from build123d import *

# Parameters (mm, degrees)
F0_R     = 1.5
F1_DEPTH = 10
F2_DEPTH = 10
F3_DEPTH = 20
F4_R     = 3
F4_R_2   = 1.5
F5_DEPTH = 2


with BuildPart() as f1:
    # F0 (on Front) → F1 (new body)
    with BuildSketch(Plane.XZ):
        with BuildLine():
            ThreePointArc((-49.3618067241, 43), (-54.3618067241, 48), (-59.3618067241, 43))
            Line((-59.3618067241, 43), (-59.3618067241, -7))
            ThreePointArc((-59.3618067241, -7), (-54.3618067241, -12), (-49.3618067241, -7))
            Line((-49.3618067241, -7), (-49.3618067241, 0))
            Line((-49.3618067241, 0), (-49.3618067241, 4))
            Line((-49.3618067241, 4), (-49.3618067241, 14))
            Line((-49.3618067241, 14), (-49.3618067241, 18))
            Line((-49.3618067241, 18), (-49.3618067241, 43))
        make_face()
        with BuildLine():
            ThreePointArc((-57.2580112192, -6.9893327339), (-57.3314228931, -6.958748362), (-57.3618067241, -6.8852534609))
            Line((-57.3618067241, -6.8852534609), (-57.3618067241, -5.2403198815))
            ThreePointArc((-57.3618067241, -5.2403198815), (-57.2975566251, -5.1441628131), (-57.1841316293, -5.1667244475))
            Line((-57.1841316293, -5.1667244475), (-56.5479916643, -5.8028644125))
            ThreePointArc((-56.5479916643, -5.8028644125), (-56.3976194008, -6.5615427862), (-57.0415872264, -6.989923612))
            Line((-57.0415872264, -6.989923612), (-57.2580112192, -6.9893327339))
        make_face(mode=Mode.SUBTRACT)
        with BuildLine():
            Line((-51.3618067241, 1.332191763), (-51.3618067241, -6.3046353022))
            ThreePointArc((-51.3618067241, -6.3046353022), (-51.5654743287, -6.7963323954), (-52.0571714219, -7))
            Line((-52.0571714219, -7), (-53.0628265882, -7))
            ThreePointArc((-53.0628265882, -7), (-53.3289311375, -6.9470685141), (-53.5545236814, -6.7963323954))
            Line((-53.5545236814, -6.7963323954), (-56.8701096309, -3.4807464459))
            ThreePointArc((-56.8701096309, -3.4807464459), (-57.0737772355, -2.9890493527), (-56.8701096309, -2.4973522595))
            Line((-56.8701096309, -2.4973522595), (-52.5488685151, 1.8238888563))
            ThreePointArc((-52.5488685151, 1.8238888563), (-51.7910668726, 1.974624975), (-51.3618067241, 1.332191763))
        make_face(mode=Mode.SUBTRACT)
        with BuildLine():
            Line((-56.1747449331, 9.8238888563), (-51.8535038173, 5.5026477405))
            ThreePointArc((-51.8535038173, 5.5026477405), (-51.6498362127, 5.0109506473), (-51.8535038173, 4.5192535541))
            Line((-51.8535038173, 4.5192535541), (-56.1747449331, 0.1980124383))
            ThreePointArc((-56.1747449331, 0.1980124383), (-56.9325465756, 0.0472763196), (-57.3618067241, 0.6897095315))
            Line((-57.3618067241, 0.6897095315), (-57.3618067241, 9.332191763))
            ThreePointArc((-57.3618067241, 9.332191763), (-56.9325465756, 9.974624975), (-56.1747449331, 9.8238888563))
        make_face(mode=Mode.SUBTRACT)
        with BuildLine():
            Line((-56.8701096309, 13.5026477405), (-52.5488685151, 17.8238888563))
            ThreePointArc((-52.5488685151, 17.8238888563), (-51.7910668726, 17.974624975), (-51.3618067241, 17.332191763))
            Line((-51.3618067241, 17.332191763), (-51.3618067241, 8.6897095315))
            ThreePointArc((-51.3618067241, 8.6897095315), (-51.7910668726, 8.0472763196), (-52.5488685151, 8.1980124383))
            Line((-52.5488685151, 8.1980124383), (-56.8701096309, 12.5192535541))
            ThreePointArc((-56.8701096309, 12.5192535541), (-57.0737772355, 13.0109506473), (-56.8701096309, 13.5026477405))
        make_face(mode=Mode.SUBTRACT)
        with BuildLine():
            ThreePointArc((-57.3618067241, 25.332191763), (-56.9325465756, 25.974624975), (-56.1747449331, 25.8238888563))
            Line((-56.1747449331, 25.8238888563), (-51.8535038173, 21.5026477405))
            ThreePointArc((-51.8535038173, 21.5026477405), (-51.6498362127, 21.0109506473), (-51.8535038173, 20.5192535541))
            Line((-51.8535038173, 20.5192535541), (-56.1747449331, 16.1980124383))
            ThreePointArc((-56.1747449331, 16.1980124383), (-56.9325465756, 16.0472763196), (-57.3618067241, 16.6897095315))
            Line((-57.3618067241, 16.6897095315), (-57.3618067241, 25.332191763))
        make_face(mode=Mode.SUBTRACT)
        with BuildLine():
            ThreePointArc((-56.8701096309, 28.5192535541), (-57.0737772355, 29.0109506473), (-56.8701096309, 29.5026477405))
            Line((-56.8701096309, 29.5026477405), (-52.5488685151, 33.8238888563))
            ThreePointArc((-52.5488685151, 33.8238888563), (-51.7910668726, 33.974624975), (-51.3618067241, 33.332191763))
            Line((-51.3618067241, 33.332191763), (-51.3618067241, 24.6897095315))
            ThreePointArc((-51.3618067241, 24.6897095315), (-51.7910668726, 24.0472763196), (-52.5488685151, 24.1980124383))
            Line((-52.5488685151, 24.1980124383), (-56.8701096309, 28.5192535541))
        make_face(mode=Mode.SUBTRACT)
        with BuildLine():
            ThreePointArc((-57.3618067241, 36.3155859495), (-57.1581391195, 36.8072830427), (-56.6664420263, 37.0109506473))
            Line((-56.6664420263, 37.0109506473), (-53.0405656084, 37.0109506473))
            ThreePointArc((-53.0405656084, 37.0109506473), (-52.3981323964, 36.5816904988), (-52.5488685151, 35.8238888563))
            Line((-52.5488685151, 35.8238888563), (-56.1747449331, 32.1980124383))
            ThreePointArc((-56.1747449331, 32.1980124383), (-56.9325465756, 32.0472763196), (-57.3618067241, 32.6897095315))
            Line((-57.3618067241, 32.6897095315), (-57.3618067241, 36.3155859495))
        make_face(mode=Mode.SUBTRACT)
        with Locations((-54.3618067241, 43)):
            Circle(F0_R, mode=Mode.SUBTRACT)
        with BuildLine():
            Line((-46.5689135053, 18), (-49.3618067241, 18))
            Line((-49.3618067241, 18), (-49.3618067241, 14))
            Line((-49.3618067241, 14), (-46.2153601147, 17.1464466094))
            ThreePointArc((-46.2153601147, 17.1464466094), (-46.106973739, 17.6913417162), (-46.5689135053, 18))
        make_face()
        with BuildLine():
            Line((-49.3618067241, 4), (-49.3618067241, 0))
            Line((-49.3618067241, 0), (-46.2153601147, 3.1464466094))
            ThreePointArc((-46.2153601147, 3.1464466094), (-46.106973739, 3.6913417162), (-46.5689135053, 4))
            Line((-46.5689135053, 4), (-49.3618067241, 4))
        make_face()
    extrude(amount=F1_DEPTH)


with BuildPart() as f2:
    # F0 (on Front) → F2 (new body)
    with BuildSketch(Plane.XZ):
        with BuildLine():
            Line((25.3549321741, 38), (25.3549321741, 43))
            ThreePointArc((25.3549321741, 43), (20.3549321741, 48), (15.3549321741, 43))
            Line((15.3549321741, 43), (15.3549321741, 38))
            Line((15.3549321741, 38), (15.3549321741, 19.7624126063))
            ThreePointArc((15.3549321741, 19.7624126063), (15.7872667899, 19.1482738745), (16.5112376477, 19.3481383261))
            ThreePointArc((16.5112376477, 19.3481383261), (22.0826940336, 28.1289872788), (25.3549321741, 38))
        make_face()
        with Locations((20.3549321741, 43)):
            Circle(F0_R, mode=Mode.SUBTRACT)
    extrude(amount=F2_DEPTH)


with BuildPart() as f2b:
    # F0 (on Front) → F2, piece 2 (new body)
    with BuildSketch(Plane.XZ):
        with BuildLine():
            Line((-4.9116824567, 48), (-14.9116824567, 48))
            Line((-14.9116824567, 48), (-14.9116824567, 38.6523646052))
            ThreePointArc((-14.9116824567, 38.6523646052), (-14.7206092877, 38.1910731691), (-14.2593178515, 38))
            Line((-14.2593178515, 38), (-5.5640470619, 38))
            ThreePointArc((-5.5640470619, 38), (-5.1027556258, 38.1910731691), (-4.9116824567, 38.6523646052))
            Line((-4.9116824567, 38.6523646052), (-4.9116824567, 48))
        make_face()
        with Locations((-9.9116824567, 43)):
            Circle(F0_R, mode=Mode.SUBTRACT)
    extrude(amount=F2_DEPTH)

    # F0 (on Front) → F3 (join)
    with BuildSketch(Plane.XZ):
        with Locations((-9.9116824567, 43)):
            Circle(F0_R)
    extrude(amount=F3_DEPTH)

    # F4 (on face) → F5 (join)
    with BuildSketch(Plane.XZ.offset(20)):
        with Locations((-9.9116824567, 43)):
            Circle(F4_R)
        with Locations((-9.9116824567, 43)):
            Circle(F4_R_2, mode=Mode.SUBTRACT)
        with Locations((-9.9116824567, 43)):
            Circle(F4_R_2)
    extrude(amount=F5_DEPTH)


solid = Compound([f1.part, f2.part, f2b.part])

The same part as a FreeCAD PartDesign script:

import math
import FreeCAD as App
import Part
import Sketcher

V = App.Vector

doc = App.newDocument("Part")
body = doc.addObject("PartDesign::Body", "Body")

# Sketch on XZ plane
sketch1 = doc.addObject("Sketcher::SketchObject", "Sketch")
body.addObject(sketch1)
sketch1.AttachmentSupport = (doc.XZ_Plane, [""])
sketch1.MapMode = "FlatFace"
sketch1.addGeometry([
    Part.ArcOfCircle(Part.Circle(V(-54.361807, 43, 0), V(0, 0, 1), 5), math.radians(0), math.radians(180)),  # 0
    Part.LineSegment(V(-59.361807, 43, 0), V(-59.361807, -7, 0)),  # 1
    Part.ArcOfCircle(Part.Circle(V(-54.361807, -7, 0), V(0, 0, 1), 5), math.radians(180), math.radians(360)),  # 2
    Part.LineSegment(V(-49.361807, -7, 0), V(-49.361807, 0, 0)),  # 3
    Part.LineSegment(V(-49.361807, 0, 0), V(-46.21536, 3.146447, 0)),  # 4
    Part.ArcOfCircle(Part.Circle(V(-46.568914, 3.5, 0), V(0, 0, 1), 0.5), math.radians(-45), math.radians(90)),  # 5
    Part.LineSegment(V(-46.568914, 4, 0), V(-49.361807, 4, 0)),  # 6
    Part.LineSegment(V(-49.361807, 4, 0), V(-49.361807, 14, 0)),  # 7
    Part.LineSegment(V(-49.361807, 14, 0), V(-46.21536, 17.146447, 0)),  # 8
    Part.ArcOfCircle(Part.Circle(V(-46.568914, 17.5, 0), V(0, 0, 1), 0.5), math.radians(-45), math.radians(90)),  # 9
    Part.LineSegment(V(-46.568914, 18, 0), V(-49.361807, 18, 0)),  # 10
    Part.LineSegment(V(-49.361807, 18, 0), V(-49.361807, 43, 0)),  # 11
    Part.LineSegment(V(-57.041587, -6.989924, 0), V(-57.258011, -6.989333, 0)),  # 12
    Part.ArcOfCircle(Part.Circle(V(-57.257727, -6.885253, 0), V(0, 0, 1), 0.10408), math.radians(180), math.radians(269.843572)),  # 13
    Part.LineSegment(V(-57.361807, -6.885253, 0), V(-57.361807, -5.24032, 0)),  # 14
    Part.ArcOfCircle(Part.Circle(V(-57.257727, -5.24032, 0), V(0, 0, 1), 0.10408), math.radians(45), math.radians(179.999999)),  # 15
    Part.LineSegment(V(-57.184132, -5.166724, 0), V(-56.547992, -5.802864, 0)),  # 16
    Part.ArcOfCircle(Part.Circle(V(-57.039689, -6.294562, 0), V(0, 0, 1), 0.695365), math.radians(-90.156428), math.radians(45)),  # 17
    Part.ArcOfCircle(Part.Circle(V(-56.666442, 9.332192, 0), V(0, 0, 1), 0.695365), math.radians(45), math.radians(180)),  # 18
    Part.LineSegment(V(-56.174745, 9.823889, 0), V(-51.853504, 5.502648, 0)),  # 19
    Part.ArcOfCircle(Part.Circle(V(-52.345201, 5.010951, 0), V(0, 0, 1), 0.695365), math.radians(-45), math.radians(45)),  # 20
    Part.LineSegment(V(-51.853504, 4.519254, 0), V(-56.174745, 0.198012, 0)),  # 21
    Part.ArcOfCircle(Part.Circle(V(-56.666442, 0.68971, 0), V(0, 0, 1), 0.695365), math.radians(180), math.radians(315)),  # 22
    Part.LineSegment(V(-57.361807, 0.68971, 0), V(-57.361807, 9.332192, 0)),  # 23
    Part.ArcOfCircle(Part.Circle(V(-52.057171, 1.332192, 0), V(0, 0, 1), 0.695365), math.radians(0), math.radians(135)),  # 24
    Part.LineSegment(V(-51.361807, 1.332192, 0), V(-51.361807, -6.304635, 0)),  # 25
    Part.ArcOfCircle(Part.Circle(V(-52.057171, -6.304635, 0), V(0, 0, 1), 0.695365), math.radians(-90), math.radians(0)),  # 26
    Part.LineSegment(V(-52.057171, -7, 0), V(-53.062827, -7, 0)),  # 27
    Part.ArcOfCircle(Part.Circle(V(-53.062827, -6.304635, 0), V(0, 0, 1), 0.695365), math.radians(-135), math.radians(-90)),  # 28
    Part.LineSegment(V(-53.554524, -6.796332, 0), V(-56.87011, -3.480746, 0)),  # 29
    Part.ArcOfCircle(Part.Circle(V(-56.378413, -2.989049, 0), V(0, 0, 1), 0.695365), math.radians(135), math.radians(225)),  # 30
    Part.LineSegment(V(-56.87011, -2.497352, 0), V(-52.548869, 1.823889, 0)),  # 31
    Part.ArcOfCircle(Part.Circle(V(-56.378413, 13.010951, 0), V(0, 0, 1), 0.695365), math.radians(135), math.radians(225)),  # 32
    Part.LineSegment(V(-56.87011, 13.502648, 0), V(-52.548869, 17.823889, 0)),  # 33
    Part.ArcOfCircle(Part.Circle(V(-52.057171, 17.332192, 0), V(0, 0, 1), 0.695365), math.radians(0), math.radians(135)),  # 34
    Part.LineSegment(V(-51.361807, 17.332192, 0), V(-51.361807, 8.68971, 0)),  # 35
    Part.ArcOfCircle(Part.Circle(V(-52.057171, 8.68971, 0), V(0, 0, 1), 0.695365), math.radians(-135), math.radians(0)),  # 36
    Part.LineSegment(V(-52.548869, 8.198012, 0), V(-56.87011, 12.519254, 0)),  # 37
    Part.LineSegment(V(-57.361807, 16.68971, 0), V(-57.361807, 25.332192, 0)),  # 38
    Part.ArcOfCircle(Part.Circle(V(-56.666442, 25.332192, 0), V(0, 0, 1), 0.695365), math.radians(45), math.radians(180)),  # 39
    Part.LineSegment(V(-56.174745, 25.823889, 0), V(-51.853504, 21.502648, 0)),  # 40
    Part.ArcOfCircle(Part.Circle(V(-52.345201, 21.010951, 0), V(0, 0, 1), 0.695365), math.radians(-45), math.radians(45)),  # 41
    Part.LineSegment(V(-51.853504, 20.519254, 0), V(-56.174745, 16.198012, 0)),  # 42
    Part.ArcOfCircle(Part.Circle(V(-56.666442, 16.68971, 0), V(0, 0, 1), 0.695365), math.radians(180), math.radians(315)),  # 43
    Part.LineSegment(V(-57.361807, 32.68971, 0), V(-57.361807, 36.315586, 0)),  # 44
    Part.ArcOfCircle(Part.Circle(V(-56.666442, 36.315586, 0), V(0, 0, 1), 0.695365), math.radians(90), math.radians(180)),  # 45
    Part.LineSegment(V(-56.666442, 37.010951, 0), V(-53.040566, 37.010951, 0)),  # 46
    Part.ArcOfCircle(Part.Circle(V(-53.040566, 36.315586, 0), V(0, 0, 1), 0.695365), math.radians(-45), math.radians(90)),  # 47
    Part.LineSegment(V(-52.548869, 35.823889, 0), V(-56.174745, 32.198012, 0)),  # 48
    Part.ArcOfCircle(Part.Circle(V(-56.666442, 32.68971, 0), V(0, 0, 1), 0.695365), math.radians(180), math.radians(315)),  # 49
    Part.Circle(V(-54.361807, 43, 0), V(0, 0, 1), 1.5),  # 50
    Part.LineSegment(V(-52.548869, 24.198012, 0), V(-56.87011, 28.519254, 0)),  # 51
    Part.ArcOfCircle(Part.Circle(V(-56.378413, 29.010951, 0), V(0, 0, 1), 0.695365), math.radians(135), math.radians(225)),  # 52
    Part.LineSegment(V(-56.87011, 29.502648, 0), V(-52.548869, 33.823889, 0)),  # 53
    Part.ArcOfCircle(Part.Circle(V(-52.057171, 33.332192, 0), V(0, 0, 1), 0.695365), math.radians(0), math.radians(135)),  # 54
    Part.LineSegment(V(-51.361807, 33.332192, 0), V(-51.361807, 24.68971, 0)),  # 55
    Part.ArcOfCircle(Part.Circle(V(-52.057171, 24.68971, 0), V(0, 0, 1), 0.695365), math.radians(-135), math.radians(0)),  # 56
], False)
sketch1.addConstraint([
    Sketcher.Constraint("Tangent", 0, 2, 1, 1),
    Sketcher.Constraint("Tangent", 1, 2, 2, 1),
    Sketcher.Constraint("Tangent", 2, 2, 3, 1),
    Sketcher.Constraint("Coincident", 3, 2, 4, 1),
    Sketcher.Constraint("Tangent", 4, 2, 5, 1),
    Sketcher.Constraint("Tangent", 5, 2, 6, 1),
    Sketcher.Constraint("Coincident", 6, 2, 7, 1),
    Sketcher.Constraint("Coincident", 7, 2, 8, 1),
    Sketcher.Constraint("Tangent", 8, 2, 9, 1),
    Sketcher.Constraint("Tangent", 9, 2, 10, 1),
    Sketcher.Constraint("Coincident", 10, 2, 11, 1),
    Sketcher.Constraint("Tangent", 11, 2, 0, 1),
    Sketcher.Constraint("Tangent", 12, 2, 13, 2),
    Sketcher.Constraint("Tangent", 13, 1, 14, 1),
    Sketcher.Constraint("Tangent", 14, 2, 15, 2),
    Sketcher.Constraint("Tangent", 15, 1, 16, 1),
    Sketcher.Constraint("Tangent", 16, 2, 17, 2),
    Sketcher.Constraint("Tangent", 17, 1, 12, 1),
    Sketcher.Constraint("Tangent", 18, 1, 19, 1),
    Sketcher.Constraint("Tangent", 19, 2, 20, 2),
    Sketcher.Constraint("Tangent", 20, 1, 21, 1),
    Sketcher.Constraint("Tangent", 21, 2, 22, 2),
    Sketcher.Constraint("Tangent", 22, 1, 23, 1),
    Sketcher.Constraint("Tangent", 23, 2, 18, 2),
    Sketcher.Constraint("Tangent", 24, 1, 25, 1),
    Sketcher.Constraint("Tangent", 25, 2, 26, 2),
    Sketcher.Constraint("Tangent", 26, 1, 27, 1),
    Sketcher.Constraint("Tangent", 27, 2, 28, 2),
    Sketcher.Constraint("Tangent", 28, 1, 29, 1),
    Sketcher.Constraint("Tangent", 29, 2, 30, 2),
    Sketcher.Constraint("Tangent", 30, 1, 31, 1),
    Sketcher.Constraint("Tangent", 31, 2, 24, 2),
    Sketcher.Constraint("Tangent", 32, 1, 33, 1),
    Sketcher.Constraint("Tangent", 33, 2, 34, 2),
    Sketcher.Constraint("Tangent", 34, 1, 35, 1),
    Sketcher.Constraint("Tangent", 35, 2, 36, 2),
    Sketcher.Constraint("Tangent", 36, 1, 37, 1),
    Sketcher.Constraint("Tangent", 37, 2, 32, 2),
    Sketcher.Constraint("Tangent", 38, 2, 39, 2),
    Sketcher.Constraint("Tangent", 39, 1, 40, 1),
    Sketcher.Constraint("Tangent", 40, 2, 41, 2),
    Sketcher.Constraint("Tangent", 41, 1, 42, 1),
    Sketcher.Constraint("Tangent", 42, 2, 43, 2),
    Sketcher.Constraint("Tangent", 43, 1, 38, 1),
    Sketcher.Constraint("Tangent", 44, 2, 45, 2),
    Sketcher.Constraint("Tangent", 45, 1, 46, 1),
    Sketcher.Constraint("Tangent", 46, 2, 47, 2),
    Sketcher.Constraint("Tangent", 47, 1, 48, 1),
    Sketcher.Constraint("Tangent", 48, 2, 49, 2),
    Sketcher.Constraint("Tangent", 49, 1, 44, 1),
    Sketcher.Constraint("Tangent", 51, 2, 52, 2),
    Sketcher.Constraint("Tangent", 52, 1, 53, 1),
    Sketcher.Constraint("Tangent", 53, 2, 54, 2),
    Sketcher.Constraint("Tangent", 54, 1, 55, 1),
    Sketcher.Constraint("Tangent", 55, 2, 56, 2),
    Sketcher.Constraint("Tangent", 56, 1, 51, 1),
    Sketcher.Constraint("Vertical", 1),
    Sketcher.Constraint("Vertical", 3),
    Sketcher.Constraint("Horizontal", 6),
    Sketcher.Constraint("Vertical", 7),
    Sketcher.Constraint("Horizontal", 10),
    Sketcher.Constraint("Vertical", 11),
    Sketcher.Constraint("Vertical", 14),
    Sketcher.Constraint("Vertical", 23),
    Sketcher.Constraint("Vertical", 25),
    Sketcher.Constraint("Horizontal", 27),
    Sketcher.Constraint("Vertical", 35),
    Sketcher.Constraint("Vertical", 38),
    Sketcher.Constraint("Vertical", 44),
    Sketcher.Constraint("Horizontal", 46),
    Sketcher.Constraint("Vertical", 55),
    Sketcher.Constraint("Coincident", 50, 3, 0, 3),
    Sketcher.Constraint("Equal", 0, 2),
    Sketcher.Constraint("Equal", 5, 9),
    Sketcher.Constraint("Equal", 13, 15),
    Sketcher.Constraint("Equal", 17, 18),
    Sketcher.Constraint("Equal", 18, 20),
    Sketcher.Constraint("Equal", 20, 22),
    Sketcher.Constraint("Equal", 22, 24),
    Sketcher.Constraint("Equal", 24, 26),
    Sketcher.Constraint("Equal", 26, 28),
    Sketcher.Constraint("Equal", 28, 30),
    Sketcher.Constraint("Equal", 30, 32),
    Sketcher.Constraint("Equal", 32, 34),
    Sketcher.Constraint("Equal", 34, 36),
    Sketcher.Constraint("Equal", 36, 39),
    Sketcher.Constraint("Equal", 39, 41),
    Sketcher.Constraint("Equal", 41, 43),
    Sketcher.Constraint("Equal", 43, 45),
    Sketcher.Constraint("Equal", 45, 47),
    Sketcher.Constraint("Equal", 47, 49),
    Sketcher.Constraint("Equal", 49, 52),
    Sketcher.Constraint("Equal", 52, 54),
    Sketcher.Constraint("Equal", 54, 56),
    Sketcher.Constraint("PointOnObject", 3, 2, -1),
    Sketcher.Constraint("Parallel", 4, 8),
    Sketcher.Constraint("Perpendicular", 8, 16),
    Sketcher.Constraint("Parallel", 16, 19),
    Sketcher.Constraint("Perpendicular", 19, 21),
    Sketcher.Constraint("Perpendicular", 21, 29),
    Sketcher.Constraint("Perpendicular", 29, 31),
    Sketcher.Constraint("Parallel", 31, 33),
    Sketcher.Constraint("Perpendicular", 33, 37),
    Sketcher.Constraint("Parallel", 37, 40),
    Sketcher.Constraint("Perpendicular", 40, 42),
    Sketcher.Constraint("Parallel", 42, 48),
    Sketcher.Constraint("Perpendicular", 48, 51),
    Sketcher.Constraint("Perpendicular", 51, 53),
    Sketcher.Constraint("Horizontal", 2, 2, 26, 1),
    Sketcher.Constraint("Vertical", 5, 3, 9, 3),
    Sketcher.Constraint("Vertical", 30, 3, 32, 3),
    Sketcher.Constraint("Vertical", 26, 3, 34, 3),
    Sketcher.Constraint("Vertical", 22, 3, 39, 3),
    Sketcher.Constraint("Vertical", 20, 3, 41, 3),
    Sketcher.Constraint("Vertical", 43, 3, 45, 3),
    Sketcher.Constraint("Vertical", 32, 3, 52, 3),
    Sketcher.Constraint("Vertical", 36, 3, 54, 3),
    Sketcher.Constraint("Vertical", 3, 2, 6, 2),
    Sketcher.Constraint("Vertical", 19, 2, 20, 1),
    Sketcher.Constraint("Vertical", 14, 2, 22, 1),
    Sketcher.Constraint("Vertical", 36, 1, 47, 1),
    Sketcher.Constraint("Equal", 23, 35),
    Sketcher.Constraint("Diameter", 50, 3.0),
    Sketcher.Constraint("Radius", 0, 5.0),
    Sketcher.Constraint("Radius", 5, 0.5),
    Sketcher.Constraint("DistanceY", 1, 2, 1, 1, 50.0),
    Sketcher.Constraint("DistanceY", 3, 1, 3, 2, 7.0),
    Sketcher.Constraint("DistanceY", 7, 1, 7, 2, 10.0),
    Sketcher.Constraint("DistanceY", 11, 1, 11, 2, 25.0),
    Sketcher.Constraint("Radius", 13, 0.10408),
    Sketcher.Constraint("Radius", 17, 0.695365),
    Sketcher.Constraint("DistanceX", 20, 3, -1, 1, 52.345201),
    Sketcher.Constraint("DistanceX", 27, 2, 27, 1, 1.005655),
    Sketcher.Constraint("DistanceX", 46, 1, 46, 2, 3.625876),
    Sketcher.Constraint("DistanceY", 14, 1, 14, 2, 1.644934),
    Sketcher.Constraint("DistanceY", 23, 1, 23, 2, 8.642482),
    Sketcher.Constraint("DistanceY", 15, 3, -1, 1, 5.24032),
    Sketcher.Constraint("DistanceX", 17, 3, -1, 1, 57.039689),
    Sketcher.Constraint("DistanceY", -1, 1, 18, 3, 9.332192),
    Sketcher.Constraint("DistanceY", -1, 1, 32, 3, 13.010951),
    Sketcher.Constraint("DistanceY", -1, 1, 39, 3, 25.332192),
    Sketcher.Constraint("DistanceY", -1, 1, 49, 3, 32.68971),
    Sketcher.Constraint("DistanceY", -1, 1, 52, 3, 29.010951),
    Sketcher.Constraint("DistanceX", 4, 2, -1, 1, 46.21536),
])
pad1 = doc.addObject("PartDesign::Pad", "Pad")
body.addObject(pad1)
pad1.Profile = sketch1
pad1.Length = 10
body2 = doc.addObject("PartDesign::Body", "Body001")

# Sketch on XZ plane
sketch2 = doc.addObject("Sketcher::SketchObject", "Sketch001")
body2.addObject(sketch2)
sketch2.AttachmentSupport = (doc.getObject("XZ_Plane001"), [""])
sketch2.MapMode = "FlatFace"
sketch2.addGeometry([
    Part.LineSegment(V(25.354932, 38, 0), V(25.354932, 43, 0)),  # 0
    Part.ArcOfCircle(Part.Circle(V(20.354932, 43, 0), V(0, 0, 1), 5), math.radians(0), math.radians(180)),  # 1
    Part.LineSegment(V(15.354932, 43, 0), V(15.354932, 19.762413, 0)),  # 2
    Part.ArcOfCircle(Part.Circle(V(16.007297, 19.762413, 0), V(0, 0, 1), 0.652365), math.radians(180), math.radians(320.577428)),  # 3
    Part.ArcOfCircle(Part.Circle(V(-16.319309, 46.337121, 0), V(0, 0, 1), 42.5), math.radians(-39.422572), math.radians(-11.312937)),  # 4
    Part.Circle(V(20.354932, 43, 0), V(0, 0, 1), 1.5),  # 5
], False)
sketch2.addConstraint([
    Sketcher.Constraint("Tangent", 0, 2, 1, 1),
    Sketcher.Constraint("Tangent", 1, 2, 2, 1),
    Sketcher.Constraint("Tangent", 2, 2, 3, 1),
    Sketcher.Constraint("Tangent", 3, 2, 4, 1),
    Sketcher.Constraint("Coincident", 4, 2, 0, 1),
    Sketcher.Constraint("Vertical", 0),
    Sketcher.Constraint("Vertical", 2),
    Sketcher.Constraint("Coincident", 5, 3, 1, 3),
    Sketcher.Constraint("Diameter", 5, 3.0),
    Sketcher.Constraint("Radius", 1, 5.0),
    Sketcher.Constraint("Radius", 4, 42.5),
    Sketcher.Constraint("DistanceY", 0, 1, 0, 2, 5.0),
    Sketcher.Constraint("DistanceY", -1, 1, 1, 3, 43.0),
    Sketcher.Constraint("Radius", 3, 0.652365),
    Sketcher.Constraint("DistanceY", 2, 2, 2, 1, 23.237587),
    Sketcher.Constraint("DistanceX", 4, 3, -1, 1, 16.319309),
])
pad2 = doc.addObject("PartDesign::Pad", "Pad001")
body2.addObject(pad2)
pad2.Profile = sketch2
pad2.Length = 10
body3 = doc.addObject("PartDesign::Body", "Body002")

# Sketch on XZ plane
sketch3 = doc.addObject("Sketcher::SketchObject", "Sketch002")
body3.addObject(sketch3)
sketch3.AttachmentSupport = (doc.getObject("XZ_Plane002"), [""])
sketch3.MapMode = "FlatFace"
sketch3.addGeometry([
    Part.LineSegment(V(-4.911682, 48, 0), V(-14.911682, 48, 0)),  # 0
    Part.LineSegment(V(-14.911682, 48, 0), V(-14.911682, 38.652365, 0)),  # 1
    Part.ArcOfCircle(Part.Circle(V(-14.259318, 38.652365, 0), V(0, 0, 1), 0.652365), math.radians(180), math.radians(270)),  # 2
    Part.LineSegment(V(-14.259318, 38, 0), V(-5.564047, 38, 0)),  # 3
    Part.ArcOfCircle(Part.Circle(V(-5.564047, 38.652365, 0), V(0, 0, 1), 0.652365), math.radians(-90), math.radians(0)),  # 4
    Part.LineSegment(V(-4.911682, 38.652365, 0), V(-4.911682, 48, 0)),  # 5
    Part.Circle(V(-9.911682, 43, 0), V(0, 0, 1), 1.5),  # 6
], False)
sketch3.addConstraint([
    Sketcher.Constraint("Coincident", 0, 2, 1, 1),
    Sketcher.Constraint("Tangent", 1, 2, 2, 1),
    Sketcher.Constraint("Tangent", 2, 2, 3, 1),
    Sketcher.Constraint("Tangent", 3, 2, 4, 1),
    Sketcher.Constraint("Tangent", 4, 2, 5, 1),
    Sketcher.Constraint("Coincident", 5, 2, 0, 1),
    Sketcher.Constraint("Horizontal", 0),
    Sketcher.Constraint("Vertical", 1),
    Sketcher.Constraint("Horizontal", 3),
    Sketcher.Constraint("Vertical", 5),
    Sketcher.Constraint("Equal", 2, 4),
    Sketcher.Constraint("Diameter", 6, 3.0),
    Sketcher.Constraint("DistanceX", 0, 2, 0, 1, 10.0),
    Sketcher.Constraint("DistanceY", -1, 1, 6, 3, 43.0),
    Sketcher.Constraint("DistanceY", -1, 1, 0, 2, 48.0),
    Sketcher.Constraint("DistanceY", -1, 1, 2, 2, 38.0),
    Sketcher.Constraint("DistanceX", 0, 2, 6, 3, 5.0),
    Sketcher.Constraint("Radius", 2, 0.652365),
    Sketcher.Constraint("DistanceX", 2, 3, -1, 1, 14.259318),
])
pad3 = doc.addObject("PartDesign::Pad", "Pad002")
body3.addObject(pad3)
pad3.Profile = sketch3
pad3.Length = 10

# Sketch on XZ plane
sketch4 = doc.addObject("Sketcher::SketchObject", "Sketch003")
body3.addObject(sketch4)
sketch4.AttachmentSupport = (doc.getObject("XZ_Plane002"), [""])
sketch4.MapMode = "FlatFace"
sketch4.addGeometry(Part.Circle(V(-9.911682, 43, 0), V(0, 0, 1), 1.5), False)
sketch4.addConstraint([
    Sketcher.Constraint("Diameter", 0, 3.0),
    Sketcher.Constraint("DistanceY", -1, 1, 0, 3, 43.0),
    Sketcher.Constraint("DistanceX", 0, 3, -1, 1, 9.911682),
])
pad4 = doc.addObject("PartDesign::Pad", "Pad003")
body3.addObject(pad4)
pad4.Profile = sketch4
pad4.Length = 20

# Sketch on XZ plane
sketch5 = doc.addObject("Sketcher::SketchObject", "Sketch004")
body3.addObject(sketch5)
sketch5.AttachmentSupport = (doc.getObject("XZ_Plane002"), [""])
sketch5.MapMode = "FlatFace"
sketch5.AttachmentOffset = App.Placement(V(0, 0, 20), App.Rotation())
sketch5.addGeometry(Part.Circle(V(-9.911682, 43, 0), V(0, 0, 1), 3), False)
sketch5.addConstraint([
    Sketcher.Constraint("Diameter", 0, 6.0),
    Sketcher.Constraint("DistanceY", -1, 1, 0, 3, 43.0),
    Sketcher.Constraint("DistanceX", 0, 3, -1, 1, 9.911682),
])
pad5 = doc.addObject("PartDesign::Pad", "Pad004")
body3.addObject(pad5)
pad5.Profile = sketch5
pad5.Length = 2

doc.recompute()
